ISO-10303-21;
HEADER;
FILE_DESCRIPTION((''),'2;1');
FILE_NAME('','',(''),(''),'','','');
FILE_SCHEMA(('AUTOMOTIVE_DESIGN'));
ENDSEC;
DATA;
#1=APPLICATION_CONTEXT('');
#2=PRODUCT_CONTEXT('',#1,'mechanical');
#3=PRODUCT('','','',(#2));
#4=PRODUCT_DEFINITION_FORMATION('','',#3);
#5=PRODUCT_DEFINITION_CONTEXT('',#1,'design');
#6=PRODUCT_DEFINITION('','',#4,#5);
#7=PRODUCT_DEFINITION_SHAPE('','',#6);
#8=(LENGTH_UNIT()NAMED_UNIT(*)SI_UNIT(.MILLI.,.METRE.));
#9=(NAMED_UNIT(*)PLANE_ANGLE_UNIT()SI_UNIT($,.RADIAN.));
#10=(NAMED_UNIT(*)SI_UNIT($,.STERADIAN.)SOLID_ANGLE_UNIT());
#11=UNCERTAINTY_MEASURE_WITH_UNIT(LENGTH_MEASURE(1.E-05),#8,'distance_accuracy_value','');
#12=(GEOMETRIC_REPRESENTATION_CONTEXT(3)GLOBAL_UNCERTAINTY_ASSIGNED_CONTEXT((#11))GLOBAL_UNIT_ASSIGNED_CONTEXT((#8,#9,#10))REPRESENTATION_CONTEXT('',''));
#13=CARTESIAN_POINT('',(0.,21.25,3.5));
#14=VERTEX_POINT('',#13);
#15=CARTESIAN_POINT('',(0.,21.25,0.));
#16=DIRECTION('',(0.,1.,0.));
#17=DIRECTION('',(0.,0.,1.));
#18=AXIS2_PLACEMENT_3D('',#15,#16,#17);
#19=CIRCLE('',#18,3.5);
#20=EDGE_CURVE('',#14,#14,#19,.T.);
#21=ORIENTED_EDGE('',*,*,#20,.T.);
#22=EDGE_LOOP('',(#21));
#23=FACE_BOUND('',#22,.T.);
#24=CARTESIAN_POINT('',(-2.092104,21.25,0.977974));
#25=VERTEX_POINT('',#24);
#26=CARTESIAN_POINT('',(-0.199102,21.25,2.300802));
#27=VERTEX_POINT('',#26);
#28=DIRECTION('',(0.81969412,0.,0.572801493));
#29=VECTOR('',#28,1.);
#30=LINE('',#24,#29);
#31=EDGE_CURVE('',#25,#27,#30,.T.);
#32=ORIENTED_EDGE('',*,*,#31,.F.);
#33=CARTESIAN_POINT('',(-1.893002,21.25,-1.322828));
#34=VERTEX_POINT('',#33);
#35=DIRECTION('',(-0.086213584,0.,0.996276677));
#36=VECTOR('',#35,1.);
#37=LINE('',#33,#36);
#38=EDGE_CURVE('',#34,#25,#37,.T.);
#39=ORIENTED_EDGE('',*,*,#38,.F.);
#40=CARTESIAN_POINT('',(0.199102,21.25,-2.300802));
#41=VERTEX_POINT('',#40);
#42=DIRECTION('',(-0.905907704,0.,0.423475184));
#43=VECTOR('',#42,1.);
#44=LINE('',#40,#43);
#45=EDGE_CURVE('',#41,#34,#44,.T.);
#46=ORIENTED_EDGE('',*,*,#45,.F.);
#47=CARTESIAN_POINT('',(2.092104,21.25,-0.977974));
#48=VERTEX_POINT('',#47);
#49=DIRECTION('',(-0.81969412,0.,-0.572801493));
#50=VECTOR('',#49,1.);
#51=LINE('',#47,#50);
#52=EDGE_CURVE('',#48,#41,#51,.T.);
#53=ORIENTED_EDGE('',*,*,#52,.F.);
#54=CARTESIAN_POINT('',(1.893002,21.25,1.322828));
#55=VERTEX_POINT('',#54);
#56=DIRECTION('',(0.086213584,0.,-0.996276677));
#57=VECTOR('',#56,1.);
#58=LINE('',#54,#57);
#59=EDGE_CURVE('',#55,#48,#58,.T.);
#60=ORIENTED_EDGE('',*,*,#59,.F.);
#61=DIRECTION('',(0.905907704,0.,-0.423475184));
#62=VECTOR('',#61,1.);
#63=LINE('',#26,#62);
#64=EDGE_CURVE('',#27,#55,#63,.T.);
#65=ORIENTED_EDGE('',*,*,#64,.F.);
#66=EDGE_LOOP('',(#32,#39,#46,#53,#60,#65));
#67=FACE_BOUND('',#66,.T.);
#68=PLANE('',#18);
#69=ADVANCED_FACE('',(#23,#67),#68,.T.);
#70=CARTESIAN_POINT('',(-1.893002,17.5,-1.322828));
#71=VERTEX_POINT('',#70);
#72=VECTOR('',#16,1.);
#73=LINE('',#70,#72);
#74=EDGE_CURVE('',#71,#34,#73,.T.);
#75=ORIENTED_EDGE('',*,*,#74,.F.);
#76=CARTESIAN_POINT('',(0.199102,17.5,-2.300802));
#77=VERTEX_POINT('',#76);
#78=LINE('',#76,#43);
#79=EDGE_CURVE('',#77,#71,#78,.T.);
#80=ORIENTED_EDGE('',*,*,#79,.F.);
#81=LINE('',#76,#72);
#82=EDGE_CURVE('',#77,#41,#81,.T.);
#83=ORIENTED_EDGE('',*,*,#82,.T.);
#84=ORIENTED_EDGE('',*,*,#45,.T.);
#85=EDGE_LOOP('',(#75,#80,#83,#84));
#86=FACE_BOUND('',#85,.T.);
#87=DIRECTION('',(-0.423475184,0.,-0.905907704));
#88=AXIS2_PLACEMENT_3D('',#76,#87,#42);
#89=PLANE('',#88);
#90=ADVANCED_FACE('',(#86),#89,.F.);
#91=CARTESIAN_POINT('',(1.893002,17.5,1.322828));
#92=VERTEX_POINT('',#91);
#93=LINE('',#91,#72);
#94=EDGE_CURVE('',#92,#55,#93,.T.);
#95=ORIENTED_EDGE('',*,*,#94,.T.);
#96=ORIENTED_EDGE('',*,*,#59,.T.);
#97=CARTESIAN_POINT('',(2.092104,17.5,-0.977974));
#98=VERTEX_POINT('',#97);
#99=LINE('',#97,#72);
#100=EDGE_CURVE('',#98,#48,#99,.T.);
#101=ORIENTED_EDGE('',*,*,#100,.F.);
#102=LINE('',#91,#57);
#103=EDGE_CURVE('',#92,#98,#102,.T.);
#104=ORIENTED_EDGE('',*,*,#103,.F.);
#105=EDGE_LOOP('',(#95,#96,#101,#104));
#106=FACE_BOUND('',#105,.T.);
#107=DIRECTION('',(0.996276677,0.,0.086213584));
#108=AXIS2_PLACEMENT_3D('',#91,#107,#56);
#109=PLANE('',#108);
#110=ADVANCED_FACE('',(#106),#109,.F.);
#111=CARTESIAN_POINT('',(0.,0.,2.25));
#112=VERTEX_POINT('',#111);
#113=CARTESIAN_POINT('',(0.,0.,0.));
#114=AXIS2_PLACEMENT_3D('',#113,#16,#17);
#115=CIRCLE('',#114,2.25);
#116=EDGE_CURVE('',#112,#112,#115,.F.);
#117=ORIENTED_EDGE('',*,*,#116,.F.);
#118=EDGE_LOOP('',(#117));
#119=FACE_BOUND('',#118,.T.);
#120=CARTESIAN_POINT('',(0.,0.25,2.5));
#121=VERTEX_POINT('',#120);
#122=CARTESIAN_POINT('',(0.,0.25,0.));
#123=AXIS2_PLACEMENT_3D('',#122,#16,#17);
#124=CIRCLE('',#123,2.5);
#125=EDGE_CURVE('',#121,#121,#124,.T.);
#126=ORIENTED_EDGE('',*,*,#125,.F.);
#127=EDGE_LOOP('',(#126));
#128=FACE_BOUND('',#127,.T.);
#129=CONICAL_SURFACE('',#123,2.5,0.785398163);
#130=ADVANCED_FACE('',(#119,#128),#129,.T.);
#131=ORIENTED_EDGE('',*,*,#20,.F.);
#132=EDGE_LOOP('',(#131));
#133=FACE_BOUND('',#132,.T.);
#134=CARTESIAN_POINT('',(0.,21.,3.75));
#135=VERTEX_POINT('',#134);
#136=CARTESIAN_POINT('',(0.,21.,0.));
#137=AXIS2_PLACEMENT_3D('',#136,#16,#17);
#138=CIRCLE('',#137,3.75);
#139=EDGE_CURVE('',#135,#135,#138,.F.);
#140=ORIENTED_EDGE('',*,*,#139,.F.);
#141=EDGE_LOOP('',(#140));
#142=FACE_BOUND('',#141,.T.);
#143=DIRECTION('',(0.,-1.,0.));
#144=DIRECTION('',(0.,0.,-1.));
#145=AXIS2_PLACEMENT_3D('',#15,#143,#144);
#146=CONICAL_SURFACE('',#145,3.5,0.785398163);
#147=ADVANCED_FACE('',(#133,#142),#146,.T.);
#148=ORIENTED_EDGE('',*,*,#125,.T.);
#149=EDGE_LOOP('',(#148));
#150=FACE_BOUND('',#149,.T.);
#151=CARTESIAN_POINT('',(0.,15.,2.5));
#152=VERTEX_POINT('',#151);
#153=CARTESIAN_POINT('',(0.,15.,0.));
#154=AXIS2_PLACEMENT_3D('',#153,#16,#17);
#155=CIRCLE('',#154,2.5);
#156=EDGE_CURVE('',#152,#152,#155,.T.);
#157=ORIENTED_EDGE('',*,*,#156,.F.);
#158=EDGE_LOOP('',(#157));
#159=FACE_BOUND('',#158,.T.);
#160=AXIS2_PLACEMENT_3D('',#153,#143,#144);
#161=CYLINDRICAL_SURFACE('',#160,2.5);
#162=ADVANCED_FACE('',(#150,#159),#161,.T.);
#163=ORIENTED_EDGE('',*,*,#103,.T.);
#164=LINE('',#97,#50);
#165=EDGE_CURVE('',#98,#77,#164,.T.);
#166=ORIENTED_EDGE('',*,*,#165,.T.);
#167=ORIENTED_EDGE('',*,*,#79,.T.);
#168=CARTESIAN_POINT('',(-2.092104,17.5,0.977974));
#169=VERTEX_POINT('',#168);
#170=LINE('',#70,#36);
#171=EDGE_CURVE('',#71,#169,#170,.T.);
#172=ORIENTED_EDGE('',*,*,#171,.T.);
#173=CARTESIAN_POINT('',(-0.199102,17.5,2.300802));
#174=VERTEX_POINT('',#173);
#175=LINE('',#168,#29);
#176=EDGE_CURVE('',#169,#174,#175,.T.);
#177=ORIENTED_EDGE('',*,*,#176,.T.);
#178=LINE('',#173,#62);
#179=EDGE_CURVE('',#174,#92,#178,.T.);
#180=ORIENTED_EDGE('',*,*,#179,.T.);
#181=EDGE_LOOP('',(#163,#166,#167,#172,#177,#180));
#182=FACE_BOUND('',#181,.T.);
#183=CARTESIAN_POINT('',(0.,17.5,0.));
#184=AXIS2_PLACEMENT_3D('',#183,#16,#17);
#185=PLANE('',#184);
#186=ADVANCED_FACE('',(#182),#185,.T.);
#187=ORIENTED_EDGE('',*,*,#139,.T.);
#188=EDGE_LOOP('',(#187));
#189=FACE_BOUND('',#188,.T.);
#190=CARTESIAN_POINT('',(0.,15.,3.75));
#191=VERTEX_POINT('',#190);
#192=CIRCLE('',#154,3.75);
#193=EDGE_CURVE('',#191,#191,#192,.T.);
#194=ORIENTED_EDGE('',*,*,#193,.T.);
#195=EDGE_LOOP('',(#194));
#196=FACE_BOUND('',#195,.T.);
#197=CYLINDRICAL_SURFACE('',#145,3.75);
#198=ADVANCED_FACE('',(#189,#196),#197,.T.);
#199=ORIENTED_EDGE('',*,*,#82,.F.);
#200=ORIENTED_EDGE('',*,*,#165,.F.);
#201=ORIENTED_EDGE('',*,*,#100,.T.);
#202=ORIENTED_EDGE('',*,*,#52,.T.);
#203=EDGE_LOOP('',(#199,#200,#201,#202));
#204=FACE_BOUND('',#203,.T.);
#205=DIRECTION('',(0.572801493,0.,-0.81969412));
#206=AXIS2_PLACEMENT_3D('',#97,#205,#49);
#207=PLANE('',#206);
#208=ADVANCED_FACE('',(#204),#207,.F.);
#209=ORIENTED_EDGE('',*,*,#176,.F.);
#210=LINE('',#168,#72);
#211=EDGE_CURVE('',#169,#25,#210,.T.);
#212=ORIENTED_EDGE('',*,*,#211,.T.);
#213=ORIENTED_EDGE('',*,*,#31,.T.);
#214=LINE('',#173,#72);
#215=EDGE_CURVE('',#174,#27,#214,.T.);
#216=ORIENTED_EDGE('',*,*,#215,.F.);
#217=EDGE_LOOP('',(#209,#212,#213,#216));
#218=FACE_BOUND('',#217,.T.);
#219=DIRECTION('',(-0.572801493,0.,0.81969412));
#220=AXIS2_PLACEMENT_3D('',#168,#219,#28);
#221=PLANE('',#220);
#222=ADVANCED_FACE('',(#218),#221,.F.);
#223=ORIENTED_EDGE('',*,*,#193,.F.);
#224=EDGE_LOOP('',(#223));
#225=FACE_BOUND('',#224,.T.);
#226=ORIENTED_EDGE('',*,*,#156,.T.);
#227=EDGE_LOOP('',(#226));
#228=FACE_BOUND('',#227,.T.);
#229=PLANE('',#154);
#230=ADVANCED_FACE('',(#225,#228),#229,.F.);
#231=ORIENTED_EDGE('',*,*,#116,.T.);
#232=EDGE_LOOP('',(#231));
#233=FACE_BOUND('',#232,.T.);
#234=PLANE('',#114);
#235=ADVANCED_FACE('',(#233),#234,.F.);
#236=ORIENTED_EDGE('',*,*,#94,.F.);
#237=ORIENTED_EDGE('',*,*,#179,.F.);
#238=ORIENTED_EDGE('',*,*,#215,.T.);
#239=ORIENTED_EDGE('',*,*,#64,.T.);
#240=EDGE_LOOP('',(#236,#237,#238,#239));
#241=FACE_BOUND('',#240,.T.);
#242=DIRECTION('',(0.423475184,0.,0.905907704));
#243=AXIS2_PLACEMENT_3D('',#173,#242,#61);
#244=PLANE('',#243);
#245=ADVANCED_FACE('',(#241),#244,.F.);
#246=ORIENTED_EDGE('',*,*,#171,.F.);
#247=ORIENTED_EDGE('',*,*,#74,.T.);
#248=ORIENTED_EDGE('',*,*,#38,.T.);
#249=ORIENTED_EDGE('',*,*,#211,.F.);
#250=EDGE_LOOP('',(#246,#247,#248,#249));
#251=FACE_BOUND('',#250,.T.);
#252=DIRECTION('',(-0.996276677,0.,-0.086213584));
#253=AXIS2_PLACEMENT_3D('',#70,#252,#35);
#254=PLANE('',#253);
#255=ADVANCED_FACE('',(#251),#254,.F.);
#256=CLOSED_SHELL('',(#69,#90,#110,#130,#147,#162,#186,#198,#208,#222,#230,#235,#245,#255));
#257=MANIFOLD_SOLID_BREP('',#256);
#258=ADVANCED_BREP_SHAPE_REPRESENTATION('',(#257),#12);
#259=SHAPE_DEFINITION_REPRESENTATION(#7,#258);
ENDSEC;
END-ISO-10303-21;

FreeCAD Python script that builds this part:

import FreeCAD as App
import Part
import Sketcher

V = App.Vector


def edges_at(feature, points):
    """Names of the edges that pass closest to the given points."""
    edges = feature.Shape.Edges
    near = lambda p: min(range(len(edges)), key=lambda i: edges[i].distToShape(Part.Vertex(*p))[0])
    return sorted({f"Edge{near(p) + 1}" for p in points})

doc = App.newDocument("Part")
body = doc.addObject("PartDesign::Body", "Body")

sketch1 = body.newObject("Sketcher::SketchObject", "Sketch")
sketch1.AttachmentSupport = (doc.getObject("XZ_Plane"), [""])
sketch1.MapMode = "FlatFace"
sketch1.addGeometry(Part.Circle(V(0, 0, 0), V(0, 0, 1), 2.5), False)
sketch1.addConstraint([
    Sketcher.Constraint("Coincident", 0, 3, -1, 1),
    Sketcher.Constraint("Diameter", 0, 5.0),
])
pad1 = body.newObject("PartDesign::Pad", "Pad")
pad1.Profile = sketch1
pad1.Length = 15
pad1.Reversed = True

sketch2 = body.newObject("Sketcher::SketchObject", "Sketch001")
sketch2.AttachmentSupport = (doc.getObject("XZ_Plane"), [""])
sketch2.MapMode = "FlatFace"
sketch2.AttachmentOffset = App.Placement(V(0, 0, -15), App.Rotation())
sketch2.addGeometry(Part.Circle(V(0, 0, 0), V(0, 0, 1), 3.8), False)
sketch2.addConstraint([
    Sketcher.Constraint("Coincident", 0, 3, -1, 1),
    Sketcher.Constraint("Diameter", 0, 7.5),
])
pad2 = body.newObject("PartDesign::Pad", "Pad001")
pad2.Profile = sketch2
pad2.Length = 6.25
pad2.Reversed = True

sketch3 = body.newObject("Sketcher::SketchObject", "Sketch002")
sketch3.AttachmentSupport = (doc.getObject("XZ_Plane"), [""])
sketch3.MapMode = "FlatFace"
sketch3.AttachmentOffset = App.Placement(V(0, 0, -21.25), App.Rotation())
sketch3.addGeometry([
    Part.LineSegment(V(-0.2, 2.3, 0), V(1.9, 1.3, 0)),
    Part.LineSegment(V(1.9, 1.3, 0), V(2.1, -1, 0)),
    Part.LineSegment(V(2.1, -1, 0), V(0.2, -2.3, 0)),
    Part.LineSegment(V(0.2, -2.3, 0), V(-1.9, -1.3, 0)),
    Part.LineSegment(V(-1.9, -1.3, 0), V(-2.1, 1, 0)),
    Part.LineSegment(V(-2.1, 1, 0), V(-0.2, 2.3, 0)),
], False)
sketch3.addConstraint([
    Sketcher.Constraint("Coincident", 0, 2, 1, 1),
    Sketcher.Constraint("Coincident", 1, 2, 2, 1),
    Sketcher.Constraint("Coincident", 2, 2, 3, 1),
    Sketcher.Constraint("Coincident", 3, 2, 4, 1),
    Sketcher.Constraint("Coincident", 4, 2, 5, 1),
    Sketcher.Constraint("Coincident", 5, 2, 0, 1),
    Sketcher.Constraint("Symmetric", 0, 2, 3, 2, -1, 1),
    Sketcher.Constraint("Symmetric", 1, 2, 4, 2, -1, 1),
    Sketcher.Constraint("Symmetric", 2, 2, 5, 2, -1, 1),
    Sketcher.Constraint("Equal", 0, 1),
    Sketcher.Constraint("Equal", 1, 2),
    Sketcher.Constraint("Distance", 0, 2.309401),
    Sketcher.Constraint("DistanceX", -1, 1, 2, 2, 0.199102),
    Sketcher.Constraint("DistanceX", 0, 2, 1, 2, 0.199102),
    Sketcher.Constraint("DistanceX", 2, 2, 0, 2, 1.693901),
])
pocket1 = body.newObject("PartDesign::Pocket", "Pocket")
pocket1.Profile = sketch3
pocket1.Length = 3.75
pocket1.Reversed = True
doc.recompute()

chamfer = body.newObject("PartDesign::Chamfer", "Chamfer")
chamfer.Base = (pocket1, edges_at(pocket1, [(0, 0, -2.5), (0, 21.25, -3.75)]))
chamfer.Size = 0.25

doc.recompute()
